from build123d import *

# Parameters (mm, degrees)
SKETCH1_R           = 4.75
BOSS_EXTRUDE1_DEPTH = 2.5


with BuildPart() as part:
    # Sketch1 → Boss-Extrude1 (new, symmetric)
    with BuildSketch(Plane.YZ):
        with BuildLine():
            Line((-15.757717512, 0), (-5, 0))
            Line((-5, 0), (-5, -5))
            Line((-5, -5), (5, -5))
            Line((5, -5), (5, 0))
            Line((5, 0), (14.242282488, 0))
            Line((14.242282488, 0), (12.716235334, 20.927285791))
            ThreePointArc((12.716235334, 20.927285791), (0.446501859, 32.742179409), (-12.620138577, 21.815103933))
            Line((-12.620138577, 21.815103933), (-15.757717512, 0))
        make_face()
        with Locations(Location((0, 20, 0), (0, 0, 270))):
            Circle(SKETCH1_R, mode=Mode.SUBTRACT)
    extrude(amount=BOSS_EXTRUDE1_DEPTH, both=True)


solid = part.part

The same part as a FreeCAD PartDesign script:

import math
import FreeCAD as App
import Part
import Sketcher
from FreeCAD import Vector
Q = App.Units.Quantity

doc = App.newDocument("Part")
params = doc.addObject("Spreadsheet::Sheet", "Params")
for row, (alias, value) in enumerate([
    ("sketch1_diameter", "9.5 mm"),
    ("sketch1_width", "10 mm"),
    ("sketch1_height", "5 mm"),
    ("sketch1_radius", "12.75 mm"),
    ("pad1_length", "5 mm"),
], start=1):
    params.set(f"A{row}", alias)
    params.set(f"B{row}", "=" + value)
    params.setAlias(f"B{row}", alias)

body = doc.addObject("PartDesign::Body", "Body")

# Sketch on YZ plane
sketch1 = body.newObject("Sketcher::SketchObject", "Sketch")
sketch1.AttachmentSupport = (doc.getObject("YZ_Plane"), [""])
sketch1.MapMode = "FlatFace"
sketch1.addGeometry(Part.LineSegment(Vector(-15.757718, 0, 0), Vector(-5, 0, 0)), False)
sketch1.addGeometry(Part.LineSegment(Vector(-5, 0, 0), Vector(-5, -5, 0)), False)
sketch1.addGeometry(Part.LineSegment(Vector(-5, -5, 0), Vector(5, -5, 0)), False)
sketch1.addGeometry(Part.LineSegment(Vector(5, -5, 0), Vector(5, 0, 0)), False)
sketch1.addGeometry(Part.LineSegment(Vector(5, 0, 0), Vector(14.242282, 0, 0)), False)
sketch1.addGeometry(Part.LineSegment(Vector(14.242282, 0, 0), Vector(12.716235, 20.927286, 0)), False)
sketch1.addGeometry(Part.ArcOfCircle(Part.Circle(Vector(0, 20, 0), Vector(0, 0, 1), 12.75), math.radians(4.170707), math.radians(171.815504)), False)
sketch1.addGeometry(Part.LineSegment(Vector(-12.620139, 21.815104, 0), Vector(-15.757718, 0, 0)), False)
sketch1.addGeometry(Part.Circle(Vector(0, 20, 0), Vector(0, 0, 1), 4.75), False)
sketch1.addConstraint(Sketcher.Constraint("Coincident", 0, 2, 1, 1))
sketch1.addConstraint(Sketcher.Constraint("Coincident", 1, 2, 2, 1))
sketch1.addConstraint(Sketcher.Constraint("Coincident", 2, 2, 3, 1))
sketch1.addConstraint(Sketcher.Constraint("Coincident", 3, 2, 4, 1))
sketch1.addConstraint(Sketcher.Constraint("Coincident", 4, 2, 5, 1))
sketch1.addConstraint(Sketcher.Constraint("Tangent", 5, 2, 6, 1))
sketch1.addConstraint(Sketcher.Constraint("Tangent", 6, 2, 7, 1))
sketch1.addConstraint(Sketcher.Constraint("Coincident", 7, 2, 0, 1))
sketch1.addConstraint(Sketcher.Constraint("Horizontal", 0))
sketch1.addConstraint(Sketcher.Constraint("Vertical", 1))
sketch1.addConstraint(Sketcher.Constraint("Horizontal", 2))
sketch1.addConstraint(Sketcher.Constraint("Vertical", 3))
sketch1.addConstraint(Sketcher.Constraint("Horizontal", 4))
sketch1.addConstraint(Sketcher.Constraint("Coincident", 8, 3, 6, 3))
sketch1.addConstraint(Sketcher.Constraint("Symmetric", 0, 2, 3, 2, -1, 1))
sketch1.addConstraint(Sketcher.Constraint("PointOnObject", 6, 3, -2))
sketch1.addConstraint(Sketcher.Constraint("PointOnObject", 0, 2, -1))
sketch1.addConstraint(Sketcher.Constraint("Diameter", 8, Q("9.5 mm")))
sketch1.addConstraint(Sketcher.Constraint("DistanceX", 2, 1, 2, 2, Q("10 mm")))
sketch1.addConstraint(Sketcher.Constraint("DistanceY", 1, 2, 1, 1, Q("5 mm")))
sketch1.addConstraint(Sketcher.Constraint("Radius", 6, Q("12.75 mm")))
sketch1.addConstraint(Sketcher.Constraint("DistanceY", -1, 1, 6, 3, Q("20 mm")))
sketch1.addConstraint(Sketcher.Constraint("Distance", 7, Q("22.039582 mm")))
sketch1.addConstraint(Sketcher.Constraint("DistanceX", 4, 1, 4, 2, Q("9.242282 mm")))
sketch1.setExpression("Constraints[17]", "Params.sketch1_diameter")
sketch1.setExpression("Constraints[18]", "Params.sketch1_width")
sketch1.setExpression("Constraints[19]", "Params.sketch1_height")
sketch1.setExpression("Constraints[20]", "Params.sketch1_radius")
pad1 = body.newObject("PartDesign::Pad", "Pad")
pad1.Profile = sketch1
pad1.setExpression("Length", "Params.pad1_length")
pad1.Midplane = True

doc.recompute()
